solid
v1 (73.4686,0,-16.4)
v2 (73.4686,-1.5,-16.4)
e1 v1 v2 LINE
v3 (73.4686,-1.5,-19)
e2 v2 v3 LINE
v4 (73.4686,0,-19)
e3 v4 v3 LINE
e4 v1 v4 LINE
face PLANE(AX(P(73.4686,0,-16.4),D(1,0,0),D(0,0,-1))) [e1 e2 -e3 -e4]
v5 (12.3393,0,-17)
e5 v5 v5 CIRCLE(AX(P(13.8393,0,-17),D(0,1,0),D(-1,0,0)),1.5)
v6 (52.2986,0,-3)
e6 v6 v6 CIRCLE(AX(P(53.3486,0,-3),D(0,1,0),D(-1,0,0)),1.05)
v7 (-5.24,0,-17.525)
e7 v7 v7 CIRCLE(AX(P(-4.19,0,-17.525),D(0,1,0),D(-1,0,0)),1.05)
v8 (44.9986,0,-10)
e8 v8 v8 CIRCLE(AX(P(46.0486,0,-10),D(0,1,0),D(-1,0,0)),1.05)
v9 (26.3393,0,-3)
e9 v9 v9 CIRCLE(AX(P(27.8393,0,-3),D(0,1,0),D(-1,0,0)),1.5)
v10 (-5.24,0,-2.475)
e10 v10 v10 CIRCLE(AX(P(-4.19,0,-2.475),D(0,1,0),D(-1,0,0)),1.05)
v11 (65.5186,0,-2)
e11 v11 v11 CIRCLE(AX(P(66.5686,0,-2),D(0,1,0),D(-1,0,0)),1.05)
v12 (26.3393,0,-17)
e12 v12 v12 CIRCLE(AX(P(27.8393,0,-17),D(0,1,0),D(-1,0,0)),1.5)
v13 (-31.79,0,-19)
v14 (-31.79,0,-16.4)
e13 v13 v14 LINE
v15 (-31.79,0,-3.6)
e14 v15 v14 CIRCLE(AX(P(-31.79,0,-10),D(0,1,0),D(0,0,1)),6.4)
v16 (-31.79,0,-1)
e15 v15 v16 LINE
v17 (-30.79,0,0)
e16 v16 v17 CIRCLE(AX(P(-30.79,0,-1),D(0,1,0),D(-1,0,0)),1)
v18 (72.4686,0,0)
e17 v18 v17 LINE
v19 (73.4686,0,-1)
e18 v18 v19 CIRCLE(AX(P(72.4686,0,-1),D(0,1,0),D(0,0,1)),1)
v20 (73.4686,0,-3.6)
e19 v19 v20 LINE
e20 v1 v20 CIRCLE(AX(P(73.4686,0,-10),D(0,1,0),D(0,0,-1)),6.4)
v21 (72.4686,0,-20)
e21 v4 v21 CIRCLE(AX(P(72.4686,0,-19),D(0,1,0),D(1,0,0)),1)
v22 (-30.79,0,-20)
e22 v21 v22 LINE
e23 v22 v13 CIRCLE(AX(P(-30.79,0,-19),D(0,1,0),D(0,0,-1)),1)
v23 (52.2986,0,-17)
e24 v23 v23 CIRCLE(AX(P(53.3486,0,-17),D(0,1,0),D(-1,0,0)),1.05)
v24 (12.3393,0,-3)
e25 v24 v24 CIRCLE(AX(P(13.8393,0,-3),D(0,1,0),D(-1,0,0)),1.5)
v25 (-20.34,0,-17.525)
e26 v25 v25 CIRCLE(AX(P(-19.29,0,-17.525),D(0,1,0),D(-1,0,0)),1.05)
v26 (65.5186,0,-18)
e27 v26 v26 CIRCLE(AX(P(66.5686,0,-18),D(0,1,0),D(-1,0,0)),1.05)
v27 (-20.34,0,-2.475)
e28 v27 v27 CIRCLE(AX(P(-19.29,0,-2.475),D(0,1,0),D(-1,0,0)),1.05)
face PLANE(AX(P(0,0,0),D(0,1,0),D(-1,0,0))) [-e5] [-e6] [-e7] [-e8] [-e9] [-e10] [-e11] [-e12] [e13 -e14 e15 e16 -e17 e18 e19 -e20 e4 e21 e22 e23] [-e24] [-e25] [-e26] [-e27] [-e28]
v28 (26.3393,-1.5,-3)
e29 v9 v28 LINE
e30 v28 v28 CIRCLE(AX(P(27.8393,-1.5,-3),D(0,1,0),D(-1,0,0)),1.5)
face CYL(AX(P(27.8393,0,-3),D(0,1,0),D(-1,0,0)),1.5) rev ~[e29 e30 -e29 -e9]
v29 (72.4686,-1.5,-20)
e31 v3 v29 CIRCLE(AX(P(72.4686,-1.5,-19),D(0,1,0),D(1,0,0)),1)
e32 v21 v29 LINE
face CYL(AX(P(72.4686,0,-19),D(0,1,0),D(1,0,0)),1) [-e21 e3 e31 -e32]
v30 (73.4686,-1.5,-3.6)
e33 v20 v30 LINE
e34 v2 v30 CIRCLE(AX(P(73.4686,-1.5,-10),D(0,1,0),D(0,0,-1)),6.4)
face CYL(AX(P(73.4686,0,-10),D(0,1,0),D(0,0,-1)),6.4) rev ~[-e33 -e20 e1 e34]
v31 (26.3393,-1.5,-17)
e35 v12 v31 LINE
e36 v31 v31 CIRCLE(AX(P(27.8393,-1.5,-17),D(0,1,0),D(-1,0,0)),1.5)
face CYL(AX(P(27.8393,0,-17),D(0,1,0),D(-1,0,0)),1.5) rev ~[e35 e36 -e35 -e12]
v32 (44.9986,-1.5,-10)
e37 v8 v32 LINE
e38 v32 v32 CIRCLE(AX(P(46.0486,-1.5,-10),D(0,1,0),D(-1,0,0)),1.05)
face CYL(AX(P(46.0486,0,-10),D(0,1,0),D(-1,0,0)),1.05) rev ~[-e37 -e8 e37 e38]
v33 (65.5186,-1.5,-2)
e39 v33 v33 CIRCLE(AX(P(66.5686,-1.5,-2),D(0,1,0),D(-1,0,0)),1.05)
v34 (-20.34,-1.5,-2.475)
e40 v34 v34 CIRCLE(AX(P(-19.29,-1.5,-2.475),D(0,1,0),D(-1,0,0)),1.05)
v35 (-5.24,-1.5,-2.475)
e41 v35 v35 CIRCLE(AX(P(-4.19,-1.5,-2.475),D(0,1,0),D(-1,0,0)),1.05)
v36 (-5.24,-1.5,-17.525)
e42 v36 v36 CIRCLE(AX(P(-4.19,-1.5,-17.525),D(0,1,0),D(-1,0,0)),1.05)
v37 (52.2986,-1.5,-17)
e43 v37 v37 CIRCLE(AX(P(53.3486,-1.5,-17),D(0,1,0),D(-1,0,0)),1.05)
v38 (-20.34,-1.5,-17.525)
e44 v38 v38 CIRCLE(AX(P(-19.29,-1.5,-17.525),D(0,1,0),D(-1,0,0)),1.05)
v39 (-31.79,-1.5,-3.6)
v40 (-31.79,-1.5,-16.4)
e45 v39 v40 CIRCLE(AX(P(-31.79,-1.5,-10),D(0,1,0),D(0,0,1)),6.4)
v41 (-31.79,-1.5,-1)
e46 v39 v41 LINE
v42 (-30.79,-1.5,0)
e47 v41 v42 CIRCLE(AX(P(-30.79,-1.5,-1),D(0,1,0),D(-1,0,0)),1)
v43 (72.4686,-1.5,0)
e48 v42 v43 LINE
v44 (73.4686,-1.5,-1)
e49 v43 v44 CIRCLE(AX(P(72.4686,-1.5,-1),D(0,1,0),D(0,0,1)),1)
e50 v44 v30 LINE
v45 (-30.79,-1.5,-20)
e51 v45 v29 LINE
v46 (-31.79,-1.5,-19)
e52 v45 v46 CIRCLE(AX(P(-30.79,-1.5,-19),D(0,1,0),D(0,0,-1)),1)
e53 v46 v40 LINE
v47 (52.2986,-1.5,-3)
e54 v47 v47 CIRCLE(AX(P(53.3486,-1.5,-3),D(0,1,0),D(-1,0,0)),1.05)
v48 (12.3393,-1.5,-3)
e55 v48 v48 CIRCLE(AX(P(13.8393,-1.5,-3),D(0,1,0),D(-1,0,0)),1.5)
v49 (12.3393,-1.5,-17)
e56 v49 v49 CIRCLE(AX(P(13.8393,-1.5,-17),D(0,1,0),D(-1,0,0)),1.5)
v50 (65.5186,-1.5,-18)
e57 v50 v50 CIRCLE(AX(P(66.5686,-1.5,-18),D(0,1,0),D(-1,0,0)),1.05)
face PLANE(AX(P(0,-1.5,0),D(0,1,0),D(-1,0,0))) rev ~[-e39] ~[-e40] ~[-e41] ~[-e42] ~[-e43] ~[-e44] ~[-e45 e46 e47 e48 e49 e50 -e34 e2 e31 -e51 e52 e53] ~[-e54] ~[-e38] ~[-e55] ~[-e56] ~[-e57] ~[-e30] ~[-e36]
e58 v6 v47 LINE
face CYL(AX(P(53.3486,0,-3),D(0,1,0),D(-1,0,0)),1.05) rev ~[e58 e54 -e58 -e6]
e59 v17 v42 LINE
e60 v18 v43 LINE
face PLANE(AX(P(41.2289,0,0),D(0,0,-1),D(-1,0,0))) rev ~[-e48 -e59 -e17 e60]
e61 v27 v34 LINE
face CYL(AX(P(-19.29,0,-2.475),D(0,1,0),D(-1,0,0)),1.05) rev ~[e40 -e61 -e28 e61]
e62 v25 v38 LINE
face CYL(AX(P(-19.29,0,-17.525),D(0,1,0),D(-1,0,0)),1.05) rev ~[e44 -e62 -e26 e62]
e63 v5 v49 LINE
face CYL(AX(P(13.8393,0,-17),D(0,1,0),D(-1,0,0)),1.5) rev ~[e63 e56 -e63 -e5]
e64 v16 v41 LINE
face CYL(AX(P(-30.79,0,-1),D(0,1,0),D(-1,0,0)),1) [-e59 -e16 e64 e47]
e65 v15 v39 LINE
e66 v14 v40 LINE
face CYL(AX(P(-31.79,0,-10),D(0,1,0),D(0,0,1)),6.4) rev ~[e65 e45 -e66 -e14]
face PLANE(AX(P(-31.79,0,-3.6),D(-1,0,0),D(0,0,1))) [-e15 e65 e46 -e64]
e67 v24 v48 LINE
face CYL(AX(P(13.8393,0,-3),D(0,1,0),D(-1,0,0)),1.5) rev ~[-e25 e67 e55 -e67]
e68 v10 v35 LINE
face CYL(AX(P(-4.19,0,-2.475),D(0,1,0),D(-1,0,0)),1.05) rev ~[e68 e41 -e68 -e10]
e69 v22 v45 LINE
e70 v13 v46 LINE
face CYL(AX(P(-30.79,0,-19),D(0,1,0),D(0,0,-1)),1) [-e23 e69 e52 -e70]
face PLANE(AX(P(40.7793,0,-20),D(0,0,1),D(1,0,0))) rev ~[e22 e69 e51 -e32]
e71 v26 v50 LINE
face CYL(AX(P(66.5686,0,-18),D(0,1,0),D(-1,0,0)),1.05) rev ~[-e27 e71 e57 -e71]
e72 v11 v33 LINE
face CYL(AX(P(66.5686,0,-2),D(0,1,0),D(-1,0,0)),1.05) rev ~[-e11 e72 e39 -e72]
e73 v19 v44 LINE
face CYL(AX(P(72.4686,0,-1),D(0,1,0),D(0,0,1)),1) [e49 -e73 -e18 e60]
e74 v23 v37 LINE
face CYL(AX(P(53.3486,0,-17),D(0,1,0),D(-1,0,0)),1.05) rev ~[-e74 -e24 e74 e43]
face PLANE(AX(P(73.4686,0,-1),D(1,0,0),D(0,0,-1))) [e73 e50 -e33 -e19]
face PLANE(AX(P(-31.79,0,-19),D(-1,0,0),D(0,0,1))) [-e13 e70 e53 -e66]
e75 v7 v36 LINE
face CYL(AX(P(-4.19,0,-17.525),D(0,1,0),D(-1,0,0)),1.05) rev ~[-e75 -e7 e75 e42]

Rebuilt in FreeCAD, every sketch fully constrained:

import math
import FreeCAD as App
import Part
import Sketcher
Q = App.Units.Quantity

doc = App.newDocument("Part")
body = doc.addObject("PartDesign::Body", "Body")

# Sketch on XZ plane
sketch1 = body.newObject("Sketcher::SketchObject", "Sketch")
sketch1.AttachmentSupport = (doc.getObject("XZ_Plane"), [""])
sketch1.MapMode = "FlatFace"
sketch1.addGeometry(Part.ArcOfCircle(Part.Circle(App.Vector(72.5, -1, 0), App.Vector(0, 0, 1), 1), math.radians(0), math.radians(90)), False)
sketch1.addGeometry(Part.LineSegment(App.Vector(73.5, -1, 0), App.Vector(73.5, -3.6, 0)), False)
sketch1.addGeometry(Part.ArcOfCircle(Part.Circle(App.Vector(73.5, -10, 0), App.Vector(0, 0, 1), 6.4), math.radians(90), math.radians(270)), False)
sketch1.addGeometry(Part.LineSegment(App.Vector(73.5, -16.4, 0), App.Vector(73.5, -19, 0)), False)
sketch1.addGeometry(Part.ArcOfCircle(Part.Circle(App.Vector(72.5, -19, 0), App.Vector(0, 0, 1), 1), math.radians(-90), math.radians(0)), False)
sketch1.addGeometry(Part.LineSegment(App.Vector(72.5, -20, 0), App.Vector(-30.8, -20, 0)), False)
sketch1.addGeometry(Part.ArcOfCircle(Part.Circle(App.Vector(-30.8, -19, 0), App.Vector(0, 0, 1), 1), math.radians(180), math.radians(270)), False)
sketch1.addGeometry(Part.LineSegment(App.Vector(-31.8, -19, 0), App.Vector(-31.8, -16.4, 0)), False)
sketch1.addGeometry(Part.ArcOfCircle(Part.Circle(App.Vector(-31.8, -10, 0), App.Vector(0, 0, 1), 6.4), math.radians(-90), math.radians(90)), False)
sketch1.addGeometry(Part.LineSegment(App.Vector(-31.8, -3.6, 0), App.Vector(-31.8, -1, 0)), False)
sketch1.addGeometry(Part.ArcOfCircle(Part.Circle(App.Vector(-30.8, -1, 0), App.Vector(0, 0, 1), 1), math.radians(90), math.radians(180)), False)
sketch1.addGeometry(Part.LineSegment(App.Vector(-30.8, 0, 0), App.Vector(72.5, 0, 0)), False)
sketch1.addGeometry(Part.Circle(App.Vector(13.8, -3, 0), App.Vector(0, 0, 1), 1.5), False)
sketch1.addGeometry(Part.Circle(App.Vector(27.8, -17, 0), App.Vector(0, 0, 1), 1.5), False)
sketch1.addGeometry(Part.Circle(App.Vector(13.8, -17, 0), App.Vector(0, 0, 1), 1.5), False)
sketch1.addGeometry(Part.Circle(App.Vector(27.8, -3, 0), App.Vector(0, 0, 1), 1.5), False)
sketch1.addGeometry(Part.Circle(App.Vector(66.6, -2, 0), App.Vector(0, 0, 1), 1.1), False)
sketch1.addGeometry(Part.Circle(App.Vector(66.6, -18, 0), App.Vector(0, 0, 1), 1.1), False)
sketch1.addGeometry(Part.Circle(App.Vector(53.3, -17, 0), App.Vector(0, 0, 1), 1.1), False)
sketch1.addGeometry(Part.Circle(App.Vector(46, -10, 0), App.Vector(0, 0, 1), 1.1), False)
sketch1.addGeometry(Part.Circle(App.Vector(53.3, -3, 0), App.Vector(0, 0, 1), 1.1), False)
sketch1.addGeometry(Part.Circle(App.Vector(-19.3, -2.5, 0), App.Vector(0, 0, 1), 1.1), False)
sketch1.addGeometry(Part.Circle(App.Vector(-4.2, -17.5, 0), App.Vector(0, 0, 1), 1.1), False)
sketch1.addGeometry(Part.Circle(App.Vector(-19.3, -17.5, 0), App.Vector(0, 0, 1), 1.1), False)
sketch1.addGeometry(Part.Circle(App.Vector(-4.2, -2.5, 0), App.Vector(0, 0, 1), 1.1), False)
sketch1.addConstraint(Sketcher.Constraint("Tangent", 0, 1, 1, 1))
sketch1.addConstraint(Sketcher.Constraint("Coincident", 1, 2, 2, 1))
sketch1.addConstraint(Sketcher.Constraint("Coincident", 2, 2, 3, 1))
sketch1.addConstraint(Sketcher.Constraint("Tangent", 3, 2, 4, 2))
sketch1.addConstraint(Sketcher.Constraint("Tangent", 4, 1, 5, 1))
sketch1.addConstraint(Sketcher.Constraint("Tangent", 5, 2, 6, 2))
sketch1.addConstraint(Sketcher.Constraint("Tangent", 6, 1, 7, 1))
sketch1.addConstraint(Sketcher.Constraint("Coincident", 7, 2, 8, 1))
sketch1.addConstraint(Sketcher.Constraint("Coincident", 8, 2, 9, 1))
sketch1.addConstraint(Sketcher.Constraint("Tangent", 9, 2, 10, 2))
sketch1.addConstraint(Sketcher.Constraint("Tangent", 10, 1, 11, 1))
sketch1.addConstraint(Sketcher.Constraint("Tangent", 11, 2, 0, 2))
sketch1.addConstraint(Sketcher.Constraint("Vertical", 1))
sketch1.addConstraint(Sketcher.Constraint("Vertical", 3))
sketch1.addConstraint(Sketcher.Constraint("Horizontal", 5))
sketch1.addConstraint(Sketcher.Constraint("Vertical", 7))
sketch1.addConstraint(Sketcher.Constraint("Vertical", 9))
sketch1.addConstraint(Sketcher.Constraint("Horizontal", 11))
sketch1.addConstraint(Sketcher.Constraint("Equal", 0, 4))
sketch1.addConstraint(Sketcher.Constraint("Equal", 4, 6))
sketch1.addConstraint(Sketcher.Constraint("Equal", 2, 8))
sketch1.addConstraint(Sketcher.Constraint("Equal", 6, 10))
sketch1.addConstraint(Sketcher.Constraint("Equal", 12, 13))
sketch1.addConstraint(Sketcher.Constraint("Equal", 13, 14))
sketch1.addConstraint(Sketcher.Constraint("Equal", 14, 15))
sketch1.addConstraint(Sketcher.Constraint("Equal", 16, 17))
sketch1.addConstraint(Sketcher.Constraint("Equal", 17, 18))
sketch1.addConstraint(Sketcher.Constraint("Equal", 18, 19))
sketch1.addConstraint(Sketcher.Constraint("Equal", 19, 20))
sketch1.addConstraint(Sketcher.Constraint("Equal", 20, 21))
sketch1.addConstraint(Sketcher.Constraint("Equal", 21, 22))
sketch1.addConstraint(Sketcher.Constraint("Equal", 22, 23))
sketch1.addConstraint(Sketcher.Constraint("Equal", 23, 24))
sketch1.addConstraint(Sketcher.Constraint("PointOnObject", 10, 1, -1))
sketch1.addConstraint(Sketcher.Constraint("Horizontal", 2, 3, 8, 3))
sketch1.addConstraint(Sketcher.Constraint("Horizontal", 13, 3, 14, 3))
sketch1.addConstraint(Sketcher.Constraint("Horizontal", 12, 3, 15, 3))
sketch1.addConstraint(Sketcher.Constraint("Horizontal", 14, 3, 18, 3))
sketch1.addConstraint(Sketcher.Constraint("Horizontal", 8, 3, 19, 3))
sketch1.addConstraint(Sketcher.Constraint("Horizontal", 15, 3, 20, 3))
sketch1.addConstraint(Sketcher.Constraint("Horizontal", 22, 3, 23, 3))
sketch1.addConstraint(Sketcher.Constraint("Horizontal", 21, 3, 24, 3))
sketch1.addConstraint(Sketcher.Constraint("Vertical", 0, 3, 4, 3))
sketch1.addConstraint(Sketcher.Constraint("Vertical", 6, 3, 10, 3))
sketch1.addConstraint(Sketcher.Constraint("Vertical", 12, 3, 14, 3))
sketch1.addConstraint(Sketcher.Constraint("Vertical", 13, 3, 15, 3))
sketch1.addConstraint(Sketcher.Constraint("Vertical", 16, 3, 17, 3))
sketch1.addConstraint(Sketcher.Constraint("Vertical", 18, 3, 20, 3))
sketch1.addConstraint(Sketcher.Constraint("Vertical", 21, 3, 23, 3))
sketch1.addConstraint(Sketcher.Constraint("Vertical", 22, 3, 24, 3))
sketch1.addConstraint(Sketcher.Constraint("Vertical", 2, 3, 0, 1))
sketch1.addConstraint(Sketcher.Constraint("Vertical", 8, 3, 6, 1))
sketch1.addConstraint(Sketcher.Constraint("Equal", 1, 3))
sketch1.addConstraint(Sketcher.Constraint("Diameter", 12, Q("3 mm")))
sketch1.addConstraint(Sketcher.Constraint("Radius", 0, Q("1 mm")))
sketch1.addConstraint(Sketcher.Constraint("Diameter", 16, Q("2.1 mm")))
sketch1.addConstraint(Sketcher.Constraint("Radius", 2, Q("6.4 mm")))
sketch1.addConstraint(Sketcher.Constraint("DistanceY", 1, 2, 1, 1, Q("2.6 mm")))
sketch1.addConstraint(Sketcher.Constraint("DistanceY", 12, 3, -1, 1, Q("3 mm")))
sketch1.addConstraint(Sketcher.Constraint("DistanceY", 13, 3, -1, 1, Q("17 mm")))
sketch1.addConstraint(Sketcher.Constraint("DistanceY", 16, 3, -1, 1, Q("2 mm")))
sketch1.addConstraint(Sketcher.Constraint("DistanceY", 17, 3, -1, 1, Q("18 mm")))
sketch1.addConstraint(Sketcher.Constraint("DistanceX", 12, 3, 13, 3, Q("14 mm")))
sketch1.addConstraint(Sketcher.Constraint("DistanceX", 16, 3, 0, 3, Q("5.9 mm")))
sketch1.addConstraint(Sketcher.Constraint("DistanceX", 19, 3, 18, 3, Q("7.3 mm")))
sketch1.addConstraint(Sketcher.Constraint("DistanceX", 10, 3, 21, 3, Q("11.5 mm")))
sketch1.addConstraint(Sketcher.Constraint("DistanceX", 21, 3, 22, 3, Q("15.1 mm")))
sketch1.addConstraint(Sketcher.Constraint("DistanceX", 6, 3, -1, 1, Q("30.79 mm")))
sketch1.addConstraint(Sketcher.Constraint("DistanceX", 18, 3, 17, 3, Q("13.22 mm")))
sketch1.addConstraint(Sketcher.Constraint("DistanceY", 22, 3, 21, 3, Q("15.05 mm")))
sketch1.addConstraint(Sketcher.Constraint("DistanceX", 5, 2, 5, 1, Q("103.2586 mm")))
sketch1.addConstraint(Sketcher.Constraint("DistanceY", 21, 3, -1, 1, Q("2.475 mm")))
sketch1.addConstraint(Sketcher.Constraint("DistanceX", -1, 1, 12, 3, Q("13.8393 mm")))
pad1 = body.newObject("PartDesign::Pad", "Pad")
pad1.Profile = sketch1
pad1.Length = 1.5

doc.recompute()
